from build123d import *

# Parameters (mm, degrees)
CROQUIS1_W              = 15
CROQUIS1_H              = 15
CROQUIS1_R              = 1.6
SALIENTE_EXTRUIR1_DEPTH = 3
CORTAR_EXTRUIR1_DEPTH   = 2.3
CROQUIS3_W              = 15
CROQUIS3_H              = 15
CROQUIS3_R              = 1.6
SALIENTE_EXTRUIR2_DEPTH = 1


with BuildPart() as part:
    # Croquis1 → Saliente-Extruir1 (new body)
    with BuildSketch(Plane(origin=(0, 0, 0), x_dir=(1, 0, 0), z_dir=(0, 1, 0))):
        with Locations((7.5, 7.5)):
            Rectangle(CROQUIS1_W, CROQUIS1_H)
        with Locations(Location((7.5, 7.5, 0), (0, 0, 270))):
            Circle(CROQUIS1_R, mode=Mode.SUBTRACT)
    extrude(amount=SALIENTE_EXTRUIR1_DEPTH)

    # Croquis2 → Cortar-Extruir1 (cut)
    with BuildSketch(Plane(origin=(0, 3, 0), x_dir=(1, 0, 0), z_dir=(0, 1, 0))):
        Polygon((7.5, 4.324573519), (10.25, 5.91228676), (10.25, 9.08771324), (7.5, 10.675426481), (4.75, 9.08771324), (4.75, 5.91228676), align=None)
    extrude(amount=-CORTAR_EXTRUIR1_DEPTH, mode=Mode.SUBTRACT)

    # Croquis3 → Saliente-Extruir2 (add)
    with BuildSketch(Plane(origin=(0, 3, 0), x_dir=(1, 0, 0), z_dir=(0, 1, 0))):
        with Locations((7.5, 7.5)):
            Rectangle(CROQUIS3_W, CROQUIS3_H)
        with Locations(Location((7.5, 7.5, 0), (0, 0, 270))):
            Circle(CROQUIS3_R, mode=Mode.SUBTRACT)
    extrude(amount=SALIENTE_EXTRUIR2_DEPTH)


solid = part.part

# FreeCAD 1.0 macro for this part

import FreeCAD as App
import Part
import Sketcher
Q = App.Units.Quantity

doc = App.newDocument("Part")
body = doc.addObject("PartDesign::Body", "Body")

sketch1 = body.newObject("Sketcher::SketchObject", "Sketch")
sketch1.AttachmentSupport = (doc.getObject("XZ_Plane"), [""])
sketch1.MapMode = "FlatFace"
sketch1.addGeometry([
    Part.LineSegment(App.Vector(0, -15, 0), App.Vector(0, 0, 0)),
    Part.LineSegment(App.Vector(0, 0, 0), App.Vector(15, 0, 0)),
    Part.LineSegment(App.Vector(15, 0, 0), App.Vector(15, -15, 0)),
    Part.LineSegment(App.Vector(15, -15, 0), App.Vector(0, -15, 0)),
    Part.Circle(App.Vector(7.5, -7.5, 0), App.Vector(0, 0, 1), 1.6),
], False)
sketch1.addConstraint([
    Sketcher.Constraint("Coincident", 0, 2, 1, 1),
    Sketcher.Constraint("Coincident", 1, 2, 2, 1),
    Sketcher.Constraint("Coincident", 2, 2, 3, 1),
    Sketcher.Constraint("Coincident", 3, 2, 0, 1),
    Sketcher.Constraint("Vertical", 0),
    Sketcher.Constraint("Horizontal", 1),
    Sketcher.Constraint("Vertical", 2),
    Sketcher.Constraint("Horizontal", 3),
    Sketcher.Constraint("Coincident", 0, 2, -1, 1),
    Sketcher.Constraint("Equal", 3, 0),
    Sketcher.Constraint("Diameter", 4, Q("3.2 mm")),
    Sketcher.Constraint("DistanceX", 1, 1, 1, 2, Q("15 mm")),
    Sketcher.Constraint("DistanceX", -1, 1, 4, 3, Q("7.5 mm")),
    Sketcher.Constraint("DistanceY", 4, 3, -1, 1, Q("7.5 mm")),
])
pad1 = body.newObject("PartDesign::Pad", "Pad")
pad1.Profile = sketch1
pad1.Length = 3
pad1.Reversed = True

sketch2 = body.newObject("Sketcher::SketchObject", "Sketch001")
sketch2.AttachmentSupport = (doc.getObject("XZ_Plane"), [""])
sketch2.MapMode = "FlatFace"
sketch2.AttachmentOffset = App.Placement(App.Vector(0, 0, -3), App.Rotation())
sketch2.addGeometry([
    Part.LineSegment(App.Vector(7.5, -4.3, 0), App.Vector(10.2, -5.9, 0)),
    Part.LineSegment(App.Vector(10.2, -5.9, 0), App.Vector(10.2, -9.1, 0)),
    Part.LineSegment(App.Vector(10.2, -9.1, 0), App.Vector(7.5, -10.7, 0)),
    Part.LineSegment(App.Vector(7.5, -10.7, 0), App.Vector(4.8, -9.1, 0)),
    Part.LineSegment(App.Vector(4.8, -9.1, 0), App.Vector(4.8, -5.9, 0)),
    Part.LineSegment(App.Vector(4.8, -5.9, 0), App.Vector(7.5, -4.3, 0)),
], False)
sketch2.addConstraint([
    Sketcher.Constraint("Coincident", 0, 2, 1, 1),
    Sketcher.Constraint("Coincident", 1, 2, 2, 1),
    Sketcher.Constraint("Coincident", 2, 2, 3, 1),
    Sketcher.Constraint("Coincident", 3, 2, 4, 1),
    Sketcher.Constraint("Coincident", 4, 2, 5, 1),
    Sketcher.Constraint("Coincident", 5, 2, 0, 1),
    Sketcher.Constraint("Vertical", 1),
    Sketcher.Constraint("Vertical", 4),
    Sketcher.Constraint("Parallel", 0, 3),
    Sketcher.Constraint("Parallel", 2, 5),
    Sketcher.Constraint("Horizontal", 1, 2, 3, 2),
    Sketcher.Constraint("Horizontal", 0, 2, 4, 2),
    Sketcher.Constraint("Vertical", 2, 2, 5, 2),
    Sketcher.Constraint("Angle", 0, Q("-30 deg")),
    Sketcher.Constraint("DistanceX", -1, 1, 2, 2, Q("7.5 mm")),
    Sketcher.Constraint("DistanceX", 3, 2, 1, 2, Q("5.5 mm")),
    Sketcher.Constraint("DistanceY", 1, 2, 1, 1, Q("3.175426 mm")),
    Sketcher.Constraint("DistanceY", 0, 2, -1, 1, Q("5.912287 mm")),
])
pocket1 = body.newObject("PartDesign::Pocket", "Pocket")
pocket1.Profile = sketch2
pocket1.Length = 2.3
pocket1.Reversed = True

sketch3 = body.newObject("Sketcher::SketchObject", "Sketch002")
sketch3.AttachmentSupport = (doc.getObject("XZ_Plane"), [""])
sketch3.MapMode = "FlatFace"
sketch3.AttachmentOffset = App.Placement(App.Vector(0, 0, -3), App.Rotation())
sketch3.addGeometry([
    Part.LineSegment(App.Vector(0, -15, 0), App.Vector(0, 0, 0)),
    Part.LineSegment(App.Vector(0, 0, 0), App.Vector(15, 0, 0)),
    Part.LineSegment(App.Vector(15, 0, 0), App.Vector(15, -15, 0)),
    Part.LineSegment(App.Vector(15, -15, 0), App.Vector(0, -15, 0)),
    Part.Circle(App.Vector(7.5, -7.5, 0), App.Vector(0, 0, 1), 1.6),
], False)
sketch3.addConstraint([
    Sketcher.Constraint("Coincident", 0, 2, 1, 1),
    Sketcher.Constraint("Coincident", 1, 2, 2, 1),
    Sketcher.Constraint("Coincident", 2, 2, 3, 1),
    Sketcher.Constraint("Coincident", 3, 2, 0, 1),
    Sketcher.Constraint("Vertical", 0),
    Sketcher.Constraint("Horizontal", 1),
    Sketcher.Constraint("Vertical", 2),
    Sketcher.Constraint("Horizontal", 3),
    Sketcher.Constraint("Coincident", 0, 2, -1, 1),
    Sketcher.Constraint("Equal", 3, 0),
    Sketcher.Constraint("Diameter", 4, Q("3.2 mm")),
    Sketcher.Constraint("DistanceX", 1, 1, 1, 2, Q("15 mm")),
    Sketcher.Constraint("DistanceX", -1, 1, 4, 3, Q("7.5 mm")),
    Sketcher.Constraint("DistanceY", 4, 3, -1, 1, Q("7.5 mm")),
])
pad2 = body.newObject("PartDesign::Pad", "Pad001")
pad2.Profile = sketch3
pad2.Length = 1
pad2.Reversed = True

doc.recompute()
